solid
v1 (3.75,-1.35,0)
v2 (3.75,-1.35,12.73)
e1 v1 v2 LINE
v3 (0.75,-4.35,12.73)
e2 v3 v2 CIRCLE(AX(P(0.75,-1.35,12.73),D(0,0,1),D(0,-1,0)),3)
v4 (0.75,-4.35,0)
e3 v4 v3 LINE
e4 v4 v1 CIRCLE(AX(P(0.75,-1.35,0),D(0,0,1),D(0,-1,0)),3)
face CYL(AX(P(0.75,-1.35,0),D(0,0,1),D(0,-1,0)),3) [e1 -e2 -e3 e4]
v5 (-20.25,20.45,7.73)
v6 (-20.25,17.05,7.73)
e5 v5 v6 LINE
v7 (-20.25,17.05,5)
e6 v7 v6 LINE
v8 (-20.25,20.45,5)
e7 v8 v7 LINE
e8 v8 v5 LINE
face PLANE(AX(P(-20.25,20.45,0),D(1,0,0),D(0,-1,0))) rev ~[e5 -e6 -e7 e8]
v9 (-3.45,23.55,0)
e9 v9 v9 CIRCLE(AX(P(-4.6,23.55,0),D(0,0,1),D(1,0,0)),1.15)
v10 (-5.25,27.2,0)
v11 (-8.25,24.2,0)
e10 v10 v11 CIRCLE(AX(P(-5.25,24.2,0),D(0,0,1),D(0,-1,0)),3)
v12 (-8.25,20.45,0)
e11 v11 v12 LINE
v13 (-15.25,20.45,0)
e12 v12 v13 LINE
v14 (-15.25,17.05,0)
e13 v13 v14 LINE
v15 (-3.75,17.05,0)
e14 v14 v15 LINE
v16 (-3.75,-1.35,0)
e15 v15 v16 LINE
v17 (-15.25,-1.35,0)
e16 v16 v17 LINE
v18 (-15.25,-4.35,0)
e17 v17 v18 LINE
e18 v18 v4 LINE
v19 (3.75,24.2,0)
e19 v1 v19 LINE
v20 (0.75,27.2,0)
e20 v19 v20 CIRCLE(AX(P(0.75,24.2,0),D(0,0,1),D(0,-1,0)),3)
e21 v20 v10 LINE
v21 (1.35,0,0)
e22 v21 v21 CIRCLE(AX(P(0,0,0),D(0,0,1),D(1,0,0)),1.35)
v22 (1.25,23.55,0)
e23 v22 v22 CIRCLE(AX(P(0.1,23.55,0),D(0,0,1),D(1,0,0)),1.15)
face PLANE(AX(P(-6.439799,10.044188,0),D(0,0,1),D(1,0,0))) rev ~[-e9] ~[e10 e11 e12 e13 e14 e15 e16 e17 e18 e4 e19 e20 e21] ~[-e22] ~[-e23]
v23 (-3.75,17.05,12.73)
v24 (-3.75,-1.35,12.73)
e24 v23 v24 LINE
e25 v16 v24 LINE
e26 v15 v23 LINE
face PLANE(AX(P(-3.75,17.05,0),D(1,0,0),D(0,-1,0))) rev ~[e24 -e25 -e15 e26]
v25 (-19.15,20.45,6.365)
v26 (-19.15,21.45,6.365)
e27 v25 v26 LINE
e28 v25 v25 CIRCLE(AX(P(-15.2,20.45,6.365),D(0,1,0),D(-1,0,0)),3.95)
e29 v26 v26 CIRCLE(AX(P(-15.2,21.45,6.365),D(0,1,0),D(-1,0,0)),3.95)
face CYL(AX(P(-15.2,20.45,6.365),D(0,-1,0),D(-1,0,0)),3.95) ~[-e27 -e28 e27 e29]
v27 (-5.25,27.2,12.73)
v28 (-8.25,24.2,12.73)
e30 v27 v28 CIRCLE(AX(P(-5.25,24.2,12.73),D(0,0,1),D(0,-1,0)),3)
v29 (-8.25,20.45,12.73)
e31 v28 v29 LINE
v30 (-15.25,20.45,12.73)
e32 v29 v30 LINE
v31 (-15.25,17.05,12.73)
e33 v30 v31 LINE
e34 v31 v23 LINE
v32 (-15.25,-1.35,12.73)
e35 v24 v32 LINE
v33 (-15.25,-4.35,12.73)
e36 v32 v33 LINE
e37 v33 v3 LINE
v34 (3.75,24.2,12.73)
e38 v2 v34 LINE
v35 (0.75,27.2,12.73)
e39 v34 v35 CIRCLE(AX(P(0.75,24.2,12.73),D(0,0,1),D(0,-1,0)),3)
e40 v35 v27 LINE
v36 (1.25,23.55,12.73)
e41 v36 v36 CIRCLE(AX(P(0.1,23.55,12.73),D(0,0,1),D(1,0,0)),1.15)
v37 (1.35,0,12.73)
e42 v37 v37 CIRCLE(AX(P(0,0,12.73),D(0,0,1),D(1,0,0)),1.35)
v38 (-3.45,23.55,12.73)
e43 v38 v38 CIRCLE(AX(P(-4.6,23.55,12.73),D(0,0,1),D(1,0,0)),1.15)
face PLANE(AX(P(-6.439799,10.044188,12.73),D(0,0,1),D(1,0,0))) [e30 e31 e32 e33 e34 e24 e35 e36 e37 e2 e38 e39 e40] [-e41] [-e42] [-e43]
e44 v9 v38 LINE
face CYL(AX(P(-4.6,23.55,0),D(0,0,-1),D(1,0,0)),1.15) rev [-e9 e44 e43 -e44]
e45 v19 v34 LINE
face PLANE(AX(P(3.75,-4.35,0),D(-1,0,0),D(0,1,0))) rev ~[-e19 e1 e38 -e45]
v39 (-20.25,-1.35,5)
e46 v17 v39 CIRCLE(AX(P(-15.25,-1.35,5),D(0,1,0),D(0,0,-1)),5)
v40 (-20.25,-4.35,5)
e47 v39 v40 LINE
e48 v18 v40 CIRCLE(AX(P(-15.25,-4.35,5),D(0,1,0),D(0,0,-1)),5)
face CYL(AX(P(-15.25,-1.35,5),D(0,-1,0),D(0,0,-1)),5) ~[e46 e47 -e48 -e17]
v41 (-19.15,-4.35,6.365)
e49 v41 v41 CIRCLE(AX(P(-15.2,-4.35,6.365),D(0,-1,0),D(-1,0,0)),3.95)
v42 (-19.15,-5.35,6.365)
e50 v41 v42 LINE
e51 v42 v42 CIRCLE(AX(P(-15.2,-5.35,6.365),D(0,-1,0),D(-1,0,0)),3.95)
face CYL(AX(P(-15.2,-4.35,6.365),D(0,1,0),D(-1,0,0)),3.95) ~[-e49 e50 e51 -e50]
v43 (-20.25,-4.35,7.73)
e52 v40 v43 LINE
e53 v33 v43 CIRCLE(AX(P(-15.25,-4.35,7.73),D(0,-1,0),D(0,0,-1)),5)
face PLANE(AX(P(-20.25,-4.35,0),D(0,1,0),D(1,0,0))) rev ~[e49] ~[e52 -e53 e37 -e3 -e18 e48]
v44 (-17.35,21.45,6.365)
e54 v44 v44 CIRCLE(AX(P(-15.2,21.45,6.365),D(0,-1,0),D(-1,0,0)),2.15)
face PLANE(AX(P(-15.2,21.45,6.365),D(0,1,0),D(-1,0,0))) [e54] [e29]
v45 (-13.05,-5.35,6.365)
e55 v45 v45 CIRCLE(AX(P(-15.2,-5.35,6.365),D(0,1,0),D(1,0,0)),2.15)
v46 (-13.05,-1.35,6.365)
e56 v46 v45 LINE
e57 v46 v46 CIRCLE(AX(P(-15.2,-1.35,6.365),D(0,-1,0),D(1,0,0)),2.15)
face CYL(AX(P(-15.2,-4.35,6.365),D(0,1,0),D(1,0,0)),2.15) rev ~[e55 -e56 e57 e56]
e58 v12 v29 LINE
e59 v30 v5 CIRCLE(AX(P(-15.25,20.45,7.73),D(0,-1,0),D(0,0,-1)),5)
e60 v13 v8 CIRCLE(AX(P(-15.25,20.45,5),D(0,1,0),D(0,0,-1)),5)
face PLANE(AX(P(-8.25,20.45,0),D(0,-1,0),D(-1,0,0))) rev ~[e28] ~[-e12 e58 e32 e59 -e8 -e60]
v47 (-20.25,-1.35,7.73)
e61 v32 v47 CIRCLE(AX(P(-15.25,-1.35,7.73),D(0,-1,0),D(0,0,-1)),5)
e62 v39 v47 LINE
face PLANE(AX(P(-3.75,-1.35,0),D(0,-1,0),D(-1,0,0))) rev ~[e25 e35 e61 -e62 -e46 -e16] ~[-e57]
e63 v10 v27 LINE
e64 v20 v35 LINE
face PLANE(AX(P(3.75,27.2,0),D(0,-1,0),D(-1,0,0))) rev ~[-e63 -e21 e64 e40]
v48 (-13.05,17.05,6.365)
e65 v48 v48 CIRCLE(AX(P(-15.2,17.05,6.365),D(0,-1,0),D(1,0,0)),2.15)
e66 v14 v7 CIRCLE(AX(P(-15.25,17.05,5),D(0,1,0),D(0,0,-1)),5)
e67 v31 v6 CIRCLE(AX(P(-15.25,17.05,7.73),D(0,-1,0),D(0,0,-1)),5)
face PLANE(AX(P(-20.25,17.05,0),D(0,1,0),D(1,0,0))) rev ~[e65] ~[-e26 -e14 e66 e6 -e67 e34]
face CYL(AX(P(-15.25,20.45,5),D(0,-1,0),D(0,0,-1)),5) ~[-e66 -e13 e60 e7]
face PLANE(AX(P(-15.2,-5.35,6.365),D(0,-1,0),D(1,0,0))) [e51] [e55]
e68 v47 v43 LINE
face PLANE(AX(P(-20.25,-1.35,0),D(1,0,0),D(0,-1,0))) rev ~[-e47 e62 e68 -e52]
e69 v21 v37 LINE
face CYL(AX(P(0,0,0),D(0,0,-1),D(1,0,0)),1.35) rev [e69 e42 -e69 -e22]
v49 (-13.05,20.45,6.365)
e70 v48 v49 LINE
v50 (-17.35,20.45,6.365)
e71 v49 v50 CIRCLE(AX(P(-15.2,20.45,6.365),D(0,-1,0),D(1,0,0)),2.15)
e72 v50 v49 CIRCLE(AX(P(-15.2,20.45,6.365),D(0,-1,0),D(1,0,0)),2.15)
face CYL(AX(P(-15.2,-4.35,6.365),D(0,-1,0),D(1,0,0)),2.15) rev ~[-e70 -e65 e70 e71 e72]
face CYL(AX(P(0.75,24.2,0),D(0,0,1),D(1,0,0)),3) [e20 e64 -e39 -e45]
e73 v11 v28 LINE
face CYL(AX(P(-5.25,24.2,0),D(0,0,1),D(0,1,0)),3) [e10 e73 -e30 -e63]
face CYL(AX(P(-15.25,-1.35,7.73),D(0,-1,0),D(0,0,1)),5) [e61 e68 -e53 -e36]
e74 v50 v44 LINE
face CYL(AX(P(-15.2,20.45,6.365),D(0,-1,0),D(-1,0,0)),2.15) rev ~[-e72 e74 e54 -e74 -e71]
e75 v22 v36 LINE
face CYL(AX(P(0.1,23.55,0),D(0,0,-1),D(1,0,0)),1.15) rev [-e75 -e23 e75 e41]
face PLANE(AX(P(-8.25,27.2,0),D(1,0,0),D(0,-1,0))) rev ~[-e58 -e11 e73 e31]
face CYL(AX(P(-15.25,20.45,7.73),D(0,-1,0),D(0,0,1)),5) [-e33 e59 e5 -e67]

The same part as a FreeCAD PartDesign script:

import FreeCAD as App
import Part
import Sketcher
from FreeCAD import Vector


def edges_at(feature, points):
    """Names of the edges that pass closest to the given points."""
    edges = feature.Shape.Edges
    near = lambda p: min(range(len(edges)), key=lambda i: edges[i].distToShape(Part.Vertex(*p))[0])
    return sorted({f"Edge{near(p) + 1}" for p in points})

doc = App.newDocument("Part")
body = doc.addObject("PartDesign::Body", "Body")

sketch1 = body.newObject("Sketcher::SketchObject", "Sketch")
sketch1.AttachmentSupport = (doc.getObject("XY_Plane"), [""])
sketch1.MapMode = "FlatFace"
sketch1.addGeometry([
    Part.LineSegment(Vector(3.8, -4.3, 0), Vector(3.8, 27.2, 0)),
    Part.LineSegment(Vector(3.8, 27.2, 0), Vector(-8.2, 27.2, 0)),
    Part.LineSegment(Vector(-8.2, 27.2, 0), Vector(-8.2, 20.4, 0)),
    Part.LineSegment(Vector(-8.2, 20.4, 0), Vector(-20.2, 20.4, 0)),
    Part.LineSegment(Vector(-20.2, 20.4, 0), Vector(-20.2, 17.1, 0)),
    Part.LineSegment(Vector(-20.2, 17.1, 0), Vector(-3.8, 17.1, 0)),
    Part.LineSegment(Vector(-3.8, 17.1, 0), Vector(-3.8, -1.4, 0)),
    Part.LineSegment(Vector(-3.8, -1.4, 0), Vector(-20.2, -1.4, 0)),
    Part.LineSegment(Vector(-20.2, -1.4, 0), Vector(-20.2, -4.3, 0)),
    Part.LineSegment(Vector(-20.2, -4.3, 0), Vector(3.8, -4.3, 0)),
    Part.Circle(Vector(0, 0, 0), Vector(0, 0, 1), 1.4),
    Part.Circle(Vector(-4.6, 23.6, 0), Vector(0, 0, 1), 1.1),
    Part.Circle(Vector(0.1, 23.6, 0), Vector(0, 0, 1), 1.1),
], False)
sketch1.addConstraint([
    Sketcher.Constraint("Coincident", 0, 2, 1, 1),
    Sketcher.Constraint("Coincident", 1, 2, 2, 1),
    Sketcher.Constraint("Coincident", 2, 2, 3, 1),
    Sketcher.Constraint("Coincident", 3, 2, 4, 1),
    Sketcher.Constraint("Coincident", 4, 2, 5, 1),
    Sketcher.Constraint("Coincident", 5, 2, 6, 1),
    Sketcher.Constraint("Coincident", 6, 2, 7, 1),
    Sketcher.Constraint("Coincident", 7, 2, 8, 1),
    Sketcher.Constraint("Coincident", 8, 2, 9, 1),
    Sketcher.Constraint("Coincident", 9, 2, 0, 1),
    Sketcher.Constraint("Vertical", 0),
    Sketcher.Constraint("Horizontal", 1),
    Sketcher.Constraint("Vertical", 2),
    Sketcher.Constraint("Horizontal", 3),
    Sketcher.Constraint("Vertical", 4),
    Sketcher.Constraint("Horizontal", 5),
    Sketcher.Constraint("Vertical", 6),
    Sketcher.Constraint("Horizontal", 7),
    Sketcher.Constraint("Vertical", 8),
    Sketcher.Constraint("Horizontal", 9),
    Sketcher.Constraint("Coincident", 10, 3, -1, 1),
    Sketcher.Constraint("Equal", 11, 12),
    Sketcher.Constraint("Horizontal", 11, 3, 12, 3),
    Sketcher.Constraint("Vertical", 4, 2, 7, 2),
    Sketcher.Constraint("Equal", 1, 3),
    Sketcher.Constraint("Diameter", 10, 2.7),
    Sketcher.Constraint("Diameter", 11, 2.3),
    Sketcher.Constraint("DistanceX", 1, 2, 1, 1, 12.0),
    Sketcher.Constraint("DistanceY", 8, 2, 8, 1, 3.0),
    Sketcher.Constraint("DistanceX", 5, 1, 5, 2, 16.5),
    Sketcher.Constraint("DistanceY", 4, 2, 4, 1, 3.4),
    Sketcher.Constraint("DistanceY", 6, 2, 6, 1, 18.4),
    Sketcher.Constraint("DistanceY", 0, 1, 0, 2, 31.55),
    Sketcher.Constraint("DistanceX", 11, 3, -1, 1, 4.6),
    Sketcher.Constraint("DistanceX", -1, 1, 12, 3, 0.1),
    Sketcher.Constraint("DistanceY", -1, 1, 0, 2, 27.2),
    Sketcher.Constraint("DistanceY", 2, 2, 11, 3, 3.1),
    Sketcher.Constraint("DistanceX", -1, 1, 0, 2, 3.75),
])
pad1 = body.newObject("PartDesign::Pad", "Pad")
pad1.Profile = sketch1
pad1.Length = 12.73

sketch2 = body.newObject("Sketcher::SketchObject", "Sketch001")
sketch2.AttachmentSupport = (doc.getObject("XZ_Plane"), [""])
sketch2.MapMode = "FlatFace"
sketch2.AttachmentOffset = App.Placement(Vector(0, 0, 4.35), App.Rotation())
sketch2.addGeometry(Part.Circle(Vector(-15.2, 6.4, 0), Vector(0, 0, 1), 2.1), False)
sketch2.addConstraint([
    Sketcher.Constraint("Diameter", 0, 4.3),
    Sketcher.Constraint("DistanceX", 0, 3, -1, 1, 15.2),
    Sketcher.Constraint("DistanceY", -1, 1, 0, 3, 6.365),
])
pocket1 = body.newObject("PartDesign::Pocket", "Pocket")
pocket1.Profile = sketch2
pocket1.Length = 25
doc.recompute()

fillet = body.newObject("PartDesign::Fillet", "Fillet")
fillet.Base = (pocket1, edges_at(pocket1, [
    (-20.25, -2.85, 12.73),
    (-20.25, 18.75, 12.73),
    (-20.25, -2.85, 0),
    (-20.25, 18.75, 0),
]))
fillet.Radius = 5
doc.recompute()

fillet2 = body.newObject("PartDesign::Fillet", "Fillet001")
fillet2.Base = (fillet, edges_at(fillet, [(3.75, -4.35, 6.365)]))
fillet2.Radius = 3
doc.recompute()

fillet3 = body.newObject("PartDesign::Fillet", "Fillet002")
fillet3.Base = (fillet2, edges_at(fillet2, [(-8.25, 27.2, 6.365), (3.75, 27.2, 6.365)]))
fillet3.Radius = 3

sketch3 = body.newObject("Sketcher::SketchObject", "Sketch002")
sketch3.AttachmentSupport = (doc.getObject("XZ_Plane"), [""])
sketch3.MapMode = "FlatFace"
sketch3.AttachmentOffset = App.Placement(Vector(0, 0, 4.35), App.Rotation())
sketch3.addGeometry([
    Part.Circle(Vector(-15.2, 6.4, 0), Vector(0, 0, 1), 4),
    Part.Circle(Vector(-15.2, 6.4, 0), Vector(0, 0, 1), 2.1),
], False)
sketch3.addConstraint([
    Sketcher.Constraint("Coincident", 1, 3, 0, 3),
    Sketcher.Constraint("Diameter", 0, 7.9),
    Sketcher.Constraint("Diameter", 1, 4.3),
    Sketcher.Constraint("DistanceX", 0, 3, -1, 1, 15.2),
    Sketcher.Constraint("DistanceY", -1, 1, 0, 3, 6.365),
])
pad2 = body.newObject("PartDesign::Pad", "Pad001")
pad2.Profile = sketch3
pad2.Length = 1

sketch4 = body.newObject("Sketcher::SketchObject", "Sketch003")
sketch4.AttachmentSupport = (doc.getObject("XZ_Plane"), [""])
sketch4.MapMode = "FlatFace"
sketch4.AttachmentOffset = App.Placement(Vector(0, 0, -20.45), App.Rotation())
sketch4.addGeometry([
    Part.Circle(Vector(-15.2, 6.4, 0), Vector(0, 0, 1), 4),
    Part.Circle(Vector(-15.2, 6.4, 0), Vector(0, 0, 1), 2.1),
], False)
sketch4.addConstraint([
    Sketcher.Constraint("Coincident", 1, 3, 0, 3),
    Sketcher.Constraint("Diameter", 0, 7.9),
    Sketcher.Constraint("Diameter", 1, 4.3),
    Sketcher.Constraint("DistanceX", 0, 3, -1, 1, 15.2),
    Sketcher.Constraint("DistanceY", -1, 1, 0, 3, 6.365),
])
pad3 = body.newObject("PartDesign::Pad", "Pad002")
pad3.Profile = sketch4
pad3.Length = 1
pad3.Reversed = True

doc.recompute()
